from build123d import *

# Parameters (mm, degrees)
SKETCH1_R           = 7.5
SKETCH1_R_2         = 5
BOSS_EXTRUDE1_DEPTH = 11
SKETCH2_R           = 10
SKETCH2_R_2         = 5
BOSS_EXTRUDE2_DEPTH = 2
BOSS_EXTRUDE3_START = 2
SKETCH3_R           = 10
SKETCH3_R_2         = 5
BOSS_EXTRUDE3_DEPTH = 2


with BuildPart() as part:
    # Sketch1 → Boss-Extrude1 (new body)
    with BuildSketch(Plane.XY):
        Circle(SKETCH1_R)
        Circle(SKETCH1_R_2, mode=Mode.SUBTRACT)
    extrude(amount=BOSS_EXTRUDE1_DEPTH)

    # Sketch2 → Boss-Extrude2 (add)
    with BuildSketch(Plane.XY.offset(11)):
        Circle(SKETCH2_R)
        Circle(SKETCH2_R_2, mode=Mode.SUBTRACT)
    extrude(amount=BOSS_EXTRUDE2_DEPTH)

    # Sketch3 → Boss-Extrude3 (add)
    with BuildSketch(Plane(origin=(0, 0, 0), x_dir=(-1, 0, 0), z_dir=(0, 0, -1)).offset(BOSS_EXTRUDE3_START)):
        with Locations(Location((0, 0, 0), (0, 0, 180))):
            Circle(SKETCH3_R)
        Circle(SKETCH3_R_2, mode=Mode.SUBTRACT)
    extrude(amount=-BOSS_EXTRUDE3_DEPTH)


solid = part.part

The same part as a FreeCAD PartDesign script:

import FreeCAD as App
import Part
import Sketcher

V = App.Vector
Q = App.Units.Quantity

doc = App.newDocument("Part")
body = doc.addObject("PartDesign::Body", "Body")

# Sketch on XY plane
sketch1 = doc.addObject("Sketcher::SketchObject", "Sketch")
body.addObject(sketch1)
sketch1.AttachmentSupport = (doc.XY_Plane, [""])
sketch1.MapMode = "FlatFace"
sketch1.addGeometry(Part.Circle(V(0, 0, 0), V(0, 0, 1), 8), False)
sketch1.addGeometry(Part.Circle(V(0, 0, 0), V(0, 0, 1), 5), False)
sketch1.addConstraint(Sketcher.Constraint("Coincident", 0, 3, -1, 1))
sketch1.addConstraint(Sketcher.Constraint("Coincident", 1, 3, -1, 1))
sketch1.addConstraint(Sketcher.Constraint("Diameter", 0, Q("15 mm")))
sketch1.addConstraint(Sketcher.Constraint("Diameter", 1, Q("10 mm")))
pad1 = doc.addObject("PartDesign::Pad", "Pad")
body.addObject(pad1)
pad1.Profile = sketch1
pad1.Length = 11

# Sketch on XY plane
sketch2 = doc.addObject("Sketcher::SketchObject", "Sketch001")
body.addObject(sketch2)
sketch2.AttachmentSupport = (doc.XY_Plane, [""])
sketch2.MapMode = "FlatFace"
sketch2.AttachmentOffset = App.Placement(V(0, 0, 11), App.Rotation())
sketch2.addGeometry(Part.Circle(V(0, 0, 0), V(0, 0, 1), 10), False)
sketch2.addGeometry(Part.Circle(V(0, 0, 0), V(0, 0, 1), 5), False)
sketch2.addConstraint(Sketcher.Constraint("Coincident", 0, 3, -1, 1))
sketch2.addConstraint(Sketcher.Constraint("Coincident", 1, 3, -1, 1))
sketch2.addConstraint(Sketcher.Constraint("Diameter", 0, Q("20 mm")))
sketch2.addConstraint(Sketcher.Constraint("Diameter", 1, Q("10 mm")))
pad2 = doc.addObject("PartDesign::Pad", "Pad001")
body.addObject(pad2)
pad2.Profile = sketch2
pad2.Length = 2

# Sketch on XY plane
sketch3 = doc.addObject("Sketcher::SketchObject", "Sketch002")
body.addObject(sketch3)
sketch3.AttachmentSupport = (doc.XY_Plane, [""])
sketch3.MapMode = "FlatFace"
sketch3.AttachmentOffset = App.Placement(V(0, 0, -2), App.Rotation())
sketch3.addGeometry(Part.Circle(V(0, 0, 0), V(0, 0, 1), 10), False)
sketch3.addGeometry(Part.Circle(V(0, 0, 0), V(0, 0, 1), 5), False)
sketch3.addConstraint(Sketcher.Constraint("Coincident", 0, 3, -1, 1))
sketch3.addConstraint(Sketcher.Constraint("Coincident", 1, 3, -1, 1))
sketch3.addConstraint(Sketcher.Constraint("Diameter", 0, Q("20 mm")))
sketch3.addConstraint(Sketcher.Constraint("Diameter", 1, Q("10 mm")))
pad3 = doc.addObject("PartDesign::Pad", "Pad002")
body.addObject(pad3)
pad3.Profile = sketch3
pad3.Length = 2

doc.recompute()
